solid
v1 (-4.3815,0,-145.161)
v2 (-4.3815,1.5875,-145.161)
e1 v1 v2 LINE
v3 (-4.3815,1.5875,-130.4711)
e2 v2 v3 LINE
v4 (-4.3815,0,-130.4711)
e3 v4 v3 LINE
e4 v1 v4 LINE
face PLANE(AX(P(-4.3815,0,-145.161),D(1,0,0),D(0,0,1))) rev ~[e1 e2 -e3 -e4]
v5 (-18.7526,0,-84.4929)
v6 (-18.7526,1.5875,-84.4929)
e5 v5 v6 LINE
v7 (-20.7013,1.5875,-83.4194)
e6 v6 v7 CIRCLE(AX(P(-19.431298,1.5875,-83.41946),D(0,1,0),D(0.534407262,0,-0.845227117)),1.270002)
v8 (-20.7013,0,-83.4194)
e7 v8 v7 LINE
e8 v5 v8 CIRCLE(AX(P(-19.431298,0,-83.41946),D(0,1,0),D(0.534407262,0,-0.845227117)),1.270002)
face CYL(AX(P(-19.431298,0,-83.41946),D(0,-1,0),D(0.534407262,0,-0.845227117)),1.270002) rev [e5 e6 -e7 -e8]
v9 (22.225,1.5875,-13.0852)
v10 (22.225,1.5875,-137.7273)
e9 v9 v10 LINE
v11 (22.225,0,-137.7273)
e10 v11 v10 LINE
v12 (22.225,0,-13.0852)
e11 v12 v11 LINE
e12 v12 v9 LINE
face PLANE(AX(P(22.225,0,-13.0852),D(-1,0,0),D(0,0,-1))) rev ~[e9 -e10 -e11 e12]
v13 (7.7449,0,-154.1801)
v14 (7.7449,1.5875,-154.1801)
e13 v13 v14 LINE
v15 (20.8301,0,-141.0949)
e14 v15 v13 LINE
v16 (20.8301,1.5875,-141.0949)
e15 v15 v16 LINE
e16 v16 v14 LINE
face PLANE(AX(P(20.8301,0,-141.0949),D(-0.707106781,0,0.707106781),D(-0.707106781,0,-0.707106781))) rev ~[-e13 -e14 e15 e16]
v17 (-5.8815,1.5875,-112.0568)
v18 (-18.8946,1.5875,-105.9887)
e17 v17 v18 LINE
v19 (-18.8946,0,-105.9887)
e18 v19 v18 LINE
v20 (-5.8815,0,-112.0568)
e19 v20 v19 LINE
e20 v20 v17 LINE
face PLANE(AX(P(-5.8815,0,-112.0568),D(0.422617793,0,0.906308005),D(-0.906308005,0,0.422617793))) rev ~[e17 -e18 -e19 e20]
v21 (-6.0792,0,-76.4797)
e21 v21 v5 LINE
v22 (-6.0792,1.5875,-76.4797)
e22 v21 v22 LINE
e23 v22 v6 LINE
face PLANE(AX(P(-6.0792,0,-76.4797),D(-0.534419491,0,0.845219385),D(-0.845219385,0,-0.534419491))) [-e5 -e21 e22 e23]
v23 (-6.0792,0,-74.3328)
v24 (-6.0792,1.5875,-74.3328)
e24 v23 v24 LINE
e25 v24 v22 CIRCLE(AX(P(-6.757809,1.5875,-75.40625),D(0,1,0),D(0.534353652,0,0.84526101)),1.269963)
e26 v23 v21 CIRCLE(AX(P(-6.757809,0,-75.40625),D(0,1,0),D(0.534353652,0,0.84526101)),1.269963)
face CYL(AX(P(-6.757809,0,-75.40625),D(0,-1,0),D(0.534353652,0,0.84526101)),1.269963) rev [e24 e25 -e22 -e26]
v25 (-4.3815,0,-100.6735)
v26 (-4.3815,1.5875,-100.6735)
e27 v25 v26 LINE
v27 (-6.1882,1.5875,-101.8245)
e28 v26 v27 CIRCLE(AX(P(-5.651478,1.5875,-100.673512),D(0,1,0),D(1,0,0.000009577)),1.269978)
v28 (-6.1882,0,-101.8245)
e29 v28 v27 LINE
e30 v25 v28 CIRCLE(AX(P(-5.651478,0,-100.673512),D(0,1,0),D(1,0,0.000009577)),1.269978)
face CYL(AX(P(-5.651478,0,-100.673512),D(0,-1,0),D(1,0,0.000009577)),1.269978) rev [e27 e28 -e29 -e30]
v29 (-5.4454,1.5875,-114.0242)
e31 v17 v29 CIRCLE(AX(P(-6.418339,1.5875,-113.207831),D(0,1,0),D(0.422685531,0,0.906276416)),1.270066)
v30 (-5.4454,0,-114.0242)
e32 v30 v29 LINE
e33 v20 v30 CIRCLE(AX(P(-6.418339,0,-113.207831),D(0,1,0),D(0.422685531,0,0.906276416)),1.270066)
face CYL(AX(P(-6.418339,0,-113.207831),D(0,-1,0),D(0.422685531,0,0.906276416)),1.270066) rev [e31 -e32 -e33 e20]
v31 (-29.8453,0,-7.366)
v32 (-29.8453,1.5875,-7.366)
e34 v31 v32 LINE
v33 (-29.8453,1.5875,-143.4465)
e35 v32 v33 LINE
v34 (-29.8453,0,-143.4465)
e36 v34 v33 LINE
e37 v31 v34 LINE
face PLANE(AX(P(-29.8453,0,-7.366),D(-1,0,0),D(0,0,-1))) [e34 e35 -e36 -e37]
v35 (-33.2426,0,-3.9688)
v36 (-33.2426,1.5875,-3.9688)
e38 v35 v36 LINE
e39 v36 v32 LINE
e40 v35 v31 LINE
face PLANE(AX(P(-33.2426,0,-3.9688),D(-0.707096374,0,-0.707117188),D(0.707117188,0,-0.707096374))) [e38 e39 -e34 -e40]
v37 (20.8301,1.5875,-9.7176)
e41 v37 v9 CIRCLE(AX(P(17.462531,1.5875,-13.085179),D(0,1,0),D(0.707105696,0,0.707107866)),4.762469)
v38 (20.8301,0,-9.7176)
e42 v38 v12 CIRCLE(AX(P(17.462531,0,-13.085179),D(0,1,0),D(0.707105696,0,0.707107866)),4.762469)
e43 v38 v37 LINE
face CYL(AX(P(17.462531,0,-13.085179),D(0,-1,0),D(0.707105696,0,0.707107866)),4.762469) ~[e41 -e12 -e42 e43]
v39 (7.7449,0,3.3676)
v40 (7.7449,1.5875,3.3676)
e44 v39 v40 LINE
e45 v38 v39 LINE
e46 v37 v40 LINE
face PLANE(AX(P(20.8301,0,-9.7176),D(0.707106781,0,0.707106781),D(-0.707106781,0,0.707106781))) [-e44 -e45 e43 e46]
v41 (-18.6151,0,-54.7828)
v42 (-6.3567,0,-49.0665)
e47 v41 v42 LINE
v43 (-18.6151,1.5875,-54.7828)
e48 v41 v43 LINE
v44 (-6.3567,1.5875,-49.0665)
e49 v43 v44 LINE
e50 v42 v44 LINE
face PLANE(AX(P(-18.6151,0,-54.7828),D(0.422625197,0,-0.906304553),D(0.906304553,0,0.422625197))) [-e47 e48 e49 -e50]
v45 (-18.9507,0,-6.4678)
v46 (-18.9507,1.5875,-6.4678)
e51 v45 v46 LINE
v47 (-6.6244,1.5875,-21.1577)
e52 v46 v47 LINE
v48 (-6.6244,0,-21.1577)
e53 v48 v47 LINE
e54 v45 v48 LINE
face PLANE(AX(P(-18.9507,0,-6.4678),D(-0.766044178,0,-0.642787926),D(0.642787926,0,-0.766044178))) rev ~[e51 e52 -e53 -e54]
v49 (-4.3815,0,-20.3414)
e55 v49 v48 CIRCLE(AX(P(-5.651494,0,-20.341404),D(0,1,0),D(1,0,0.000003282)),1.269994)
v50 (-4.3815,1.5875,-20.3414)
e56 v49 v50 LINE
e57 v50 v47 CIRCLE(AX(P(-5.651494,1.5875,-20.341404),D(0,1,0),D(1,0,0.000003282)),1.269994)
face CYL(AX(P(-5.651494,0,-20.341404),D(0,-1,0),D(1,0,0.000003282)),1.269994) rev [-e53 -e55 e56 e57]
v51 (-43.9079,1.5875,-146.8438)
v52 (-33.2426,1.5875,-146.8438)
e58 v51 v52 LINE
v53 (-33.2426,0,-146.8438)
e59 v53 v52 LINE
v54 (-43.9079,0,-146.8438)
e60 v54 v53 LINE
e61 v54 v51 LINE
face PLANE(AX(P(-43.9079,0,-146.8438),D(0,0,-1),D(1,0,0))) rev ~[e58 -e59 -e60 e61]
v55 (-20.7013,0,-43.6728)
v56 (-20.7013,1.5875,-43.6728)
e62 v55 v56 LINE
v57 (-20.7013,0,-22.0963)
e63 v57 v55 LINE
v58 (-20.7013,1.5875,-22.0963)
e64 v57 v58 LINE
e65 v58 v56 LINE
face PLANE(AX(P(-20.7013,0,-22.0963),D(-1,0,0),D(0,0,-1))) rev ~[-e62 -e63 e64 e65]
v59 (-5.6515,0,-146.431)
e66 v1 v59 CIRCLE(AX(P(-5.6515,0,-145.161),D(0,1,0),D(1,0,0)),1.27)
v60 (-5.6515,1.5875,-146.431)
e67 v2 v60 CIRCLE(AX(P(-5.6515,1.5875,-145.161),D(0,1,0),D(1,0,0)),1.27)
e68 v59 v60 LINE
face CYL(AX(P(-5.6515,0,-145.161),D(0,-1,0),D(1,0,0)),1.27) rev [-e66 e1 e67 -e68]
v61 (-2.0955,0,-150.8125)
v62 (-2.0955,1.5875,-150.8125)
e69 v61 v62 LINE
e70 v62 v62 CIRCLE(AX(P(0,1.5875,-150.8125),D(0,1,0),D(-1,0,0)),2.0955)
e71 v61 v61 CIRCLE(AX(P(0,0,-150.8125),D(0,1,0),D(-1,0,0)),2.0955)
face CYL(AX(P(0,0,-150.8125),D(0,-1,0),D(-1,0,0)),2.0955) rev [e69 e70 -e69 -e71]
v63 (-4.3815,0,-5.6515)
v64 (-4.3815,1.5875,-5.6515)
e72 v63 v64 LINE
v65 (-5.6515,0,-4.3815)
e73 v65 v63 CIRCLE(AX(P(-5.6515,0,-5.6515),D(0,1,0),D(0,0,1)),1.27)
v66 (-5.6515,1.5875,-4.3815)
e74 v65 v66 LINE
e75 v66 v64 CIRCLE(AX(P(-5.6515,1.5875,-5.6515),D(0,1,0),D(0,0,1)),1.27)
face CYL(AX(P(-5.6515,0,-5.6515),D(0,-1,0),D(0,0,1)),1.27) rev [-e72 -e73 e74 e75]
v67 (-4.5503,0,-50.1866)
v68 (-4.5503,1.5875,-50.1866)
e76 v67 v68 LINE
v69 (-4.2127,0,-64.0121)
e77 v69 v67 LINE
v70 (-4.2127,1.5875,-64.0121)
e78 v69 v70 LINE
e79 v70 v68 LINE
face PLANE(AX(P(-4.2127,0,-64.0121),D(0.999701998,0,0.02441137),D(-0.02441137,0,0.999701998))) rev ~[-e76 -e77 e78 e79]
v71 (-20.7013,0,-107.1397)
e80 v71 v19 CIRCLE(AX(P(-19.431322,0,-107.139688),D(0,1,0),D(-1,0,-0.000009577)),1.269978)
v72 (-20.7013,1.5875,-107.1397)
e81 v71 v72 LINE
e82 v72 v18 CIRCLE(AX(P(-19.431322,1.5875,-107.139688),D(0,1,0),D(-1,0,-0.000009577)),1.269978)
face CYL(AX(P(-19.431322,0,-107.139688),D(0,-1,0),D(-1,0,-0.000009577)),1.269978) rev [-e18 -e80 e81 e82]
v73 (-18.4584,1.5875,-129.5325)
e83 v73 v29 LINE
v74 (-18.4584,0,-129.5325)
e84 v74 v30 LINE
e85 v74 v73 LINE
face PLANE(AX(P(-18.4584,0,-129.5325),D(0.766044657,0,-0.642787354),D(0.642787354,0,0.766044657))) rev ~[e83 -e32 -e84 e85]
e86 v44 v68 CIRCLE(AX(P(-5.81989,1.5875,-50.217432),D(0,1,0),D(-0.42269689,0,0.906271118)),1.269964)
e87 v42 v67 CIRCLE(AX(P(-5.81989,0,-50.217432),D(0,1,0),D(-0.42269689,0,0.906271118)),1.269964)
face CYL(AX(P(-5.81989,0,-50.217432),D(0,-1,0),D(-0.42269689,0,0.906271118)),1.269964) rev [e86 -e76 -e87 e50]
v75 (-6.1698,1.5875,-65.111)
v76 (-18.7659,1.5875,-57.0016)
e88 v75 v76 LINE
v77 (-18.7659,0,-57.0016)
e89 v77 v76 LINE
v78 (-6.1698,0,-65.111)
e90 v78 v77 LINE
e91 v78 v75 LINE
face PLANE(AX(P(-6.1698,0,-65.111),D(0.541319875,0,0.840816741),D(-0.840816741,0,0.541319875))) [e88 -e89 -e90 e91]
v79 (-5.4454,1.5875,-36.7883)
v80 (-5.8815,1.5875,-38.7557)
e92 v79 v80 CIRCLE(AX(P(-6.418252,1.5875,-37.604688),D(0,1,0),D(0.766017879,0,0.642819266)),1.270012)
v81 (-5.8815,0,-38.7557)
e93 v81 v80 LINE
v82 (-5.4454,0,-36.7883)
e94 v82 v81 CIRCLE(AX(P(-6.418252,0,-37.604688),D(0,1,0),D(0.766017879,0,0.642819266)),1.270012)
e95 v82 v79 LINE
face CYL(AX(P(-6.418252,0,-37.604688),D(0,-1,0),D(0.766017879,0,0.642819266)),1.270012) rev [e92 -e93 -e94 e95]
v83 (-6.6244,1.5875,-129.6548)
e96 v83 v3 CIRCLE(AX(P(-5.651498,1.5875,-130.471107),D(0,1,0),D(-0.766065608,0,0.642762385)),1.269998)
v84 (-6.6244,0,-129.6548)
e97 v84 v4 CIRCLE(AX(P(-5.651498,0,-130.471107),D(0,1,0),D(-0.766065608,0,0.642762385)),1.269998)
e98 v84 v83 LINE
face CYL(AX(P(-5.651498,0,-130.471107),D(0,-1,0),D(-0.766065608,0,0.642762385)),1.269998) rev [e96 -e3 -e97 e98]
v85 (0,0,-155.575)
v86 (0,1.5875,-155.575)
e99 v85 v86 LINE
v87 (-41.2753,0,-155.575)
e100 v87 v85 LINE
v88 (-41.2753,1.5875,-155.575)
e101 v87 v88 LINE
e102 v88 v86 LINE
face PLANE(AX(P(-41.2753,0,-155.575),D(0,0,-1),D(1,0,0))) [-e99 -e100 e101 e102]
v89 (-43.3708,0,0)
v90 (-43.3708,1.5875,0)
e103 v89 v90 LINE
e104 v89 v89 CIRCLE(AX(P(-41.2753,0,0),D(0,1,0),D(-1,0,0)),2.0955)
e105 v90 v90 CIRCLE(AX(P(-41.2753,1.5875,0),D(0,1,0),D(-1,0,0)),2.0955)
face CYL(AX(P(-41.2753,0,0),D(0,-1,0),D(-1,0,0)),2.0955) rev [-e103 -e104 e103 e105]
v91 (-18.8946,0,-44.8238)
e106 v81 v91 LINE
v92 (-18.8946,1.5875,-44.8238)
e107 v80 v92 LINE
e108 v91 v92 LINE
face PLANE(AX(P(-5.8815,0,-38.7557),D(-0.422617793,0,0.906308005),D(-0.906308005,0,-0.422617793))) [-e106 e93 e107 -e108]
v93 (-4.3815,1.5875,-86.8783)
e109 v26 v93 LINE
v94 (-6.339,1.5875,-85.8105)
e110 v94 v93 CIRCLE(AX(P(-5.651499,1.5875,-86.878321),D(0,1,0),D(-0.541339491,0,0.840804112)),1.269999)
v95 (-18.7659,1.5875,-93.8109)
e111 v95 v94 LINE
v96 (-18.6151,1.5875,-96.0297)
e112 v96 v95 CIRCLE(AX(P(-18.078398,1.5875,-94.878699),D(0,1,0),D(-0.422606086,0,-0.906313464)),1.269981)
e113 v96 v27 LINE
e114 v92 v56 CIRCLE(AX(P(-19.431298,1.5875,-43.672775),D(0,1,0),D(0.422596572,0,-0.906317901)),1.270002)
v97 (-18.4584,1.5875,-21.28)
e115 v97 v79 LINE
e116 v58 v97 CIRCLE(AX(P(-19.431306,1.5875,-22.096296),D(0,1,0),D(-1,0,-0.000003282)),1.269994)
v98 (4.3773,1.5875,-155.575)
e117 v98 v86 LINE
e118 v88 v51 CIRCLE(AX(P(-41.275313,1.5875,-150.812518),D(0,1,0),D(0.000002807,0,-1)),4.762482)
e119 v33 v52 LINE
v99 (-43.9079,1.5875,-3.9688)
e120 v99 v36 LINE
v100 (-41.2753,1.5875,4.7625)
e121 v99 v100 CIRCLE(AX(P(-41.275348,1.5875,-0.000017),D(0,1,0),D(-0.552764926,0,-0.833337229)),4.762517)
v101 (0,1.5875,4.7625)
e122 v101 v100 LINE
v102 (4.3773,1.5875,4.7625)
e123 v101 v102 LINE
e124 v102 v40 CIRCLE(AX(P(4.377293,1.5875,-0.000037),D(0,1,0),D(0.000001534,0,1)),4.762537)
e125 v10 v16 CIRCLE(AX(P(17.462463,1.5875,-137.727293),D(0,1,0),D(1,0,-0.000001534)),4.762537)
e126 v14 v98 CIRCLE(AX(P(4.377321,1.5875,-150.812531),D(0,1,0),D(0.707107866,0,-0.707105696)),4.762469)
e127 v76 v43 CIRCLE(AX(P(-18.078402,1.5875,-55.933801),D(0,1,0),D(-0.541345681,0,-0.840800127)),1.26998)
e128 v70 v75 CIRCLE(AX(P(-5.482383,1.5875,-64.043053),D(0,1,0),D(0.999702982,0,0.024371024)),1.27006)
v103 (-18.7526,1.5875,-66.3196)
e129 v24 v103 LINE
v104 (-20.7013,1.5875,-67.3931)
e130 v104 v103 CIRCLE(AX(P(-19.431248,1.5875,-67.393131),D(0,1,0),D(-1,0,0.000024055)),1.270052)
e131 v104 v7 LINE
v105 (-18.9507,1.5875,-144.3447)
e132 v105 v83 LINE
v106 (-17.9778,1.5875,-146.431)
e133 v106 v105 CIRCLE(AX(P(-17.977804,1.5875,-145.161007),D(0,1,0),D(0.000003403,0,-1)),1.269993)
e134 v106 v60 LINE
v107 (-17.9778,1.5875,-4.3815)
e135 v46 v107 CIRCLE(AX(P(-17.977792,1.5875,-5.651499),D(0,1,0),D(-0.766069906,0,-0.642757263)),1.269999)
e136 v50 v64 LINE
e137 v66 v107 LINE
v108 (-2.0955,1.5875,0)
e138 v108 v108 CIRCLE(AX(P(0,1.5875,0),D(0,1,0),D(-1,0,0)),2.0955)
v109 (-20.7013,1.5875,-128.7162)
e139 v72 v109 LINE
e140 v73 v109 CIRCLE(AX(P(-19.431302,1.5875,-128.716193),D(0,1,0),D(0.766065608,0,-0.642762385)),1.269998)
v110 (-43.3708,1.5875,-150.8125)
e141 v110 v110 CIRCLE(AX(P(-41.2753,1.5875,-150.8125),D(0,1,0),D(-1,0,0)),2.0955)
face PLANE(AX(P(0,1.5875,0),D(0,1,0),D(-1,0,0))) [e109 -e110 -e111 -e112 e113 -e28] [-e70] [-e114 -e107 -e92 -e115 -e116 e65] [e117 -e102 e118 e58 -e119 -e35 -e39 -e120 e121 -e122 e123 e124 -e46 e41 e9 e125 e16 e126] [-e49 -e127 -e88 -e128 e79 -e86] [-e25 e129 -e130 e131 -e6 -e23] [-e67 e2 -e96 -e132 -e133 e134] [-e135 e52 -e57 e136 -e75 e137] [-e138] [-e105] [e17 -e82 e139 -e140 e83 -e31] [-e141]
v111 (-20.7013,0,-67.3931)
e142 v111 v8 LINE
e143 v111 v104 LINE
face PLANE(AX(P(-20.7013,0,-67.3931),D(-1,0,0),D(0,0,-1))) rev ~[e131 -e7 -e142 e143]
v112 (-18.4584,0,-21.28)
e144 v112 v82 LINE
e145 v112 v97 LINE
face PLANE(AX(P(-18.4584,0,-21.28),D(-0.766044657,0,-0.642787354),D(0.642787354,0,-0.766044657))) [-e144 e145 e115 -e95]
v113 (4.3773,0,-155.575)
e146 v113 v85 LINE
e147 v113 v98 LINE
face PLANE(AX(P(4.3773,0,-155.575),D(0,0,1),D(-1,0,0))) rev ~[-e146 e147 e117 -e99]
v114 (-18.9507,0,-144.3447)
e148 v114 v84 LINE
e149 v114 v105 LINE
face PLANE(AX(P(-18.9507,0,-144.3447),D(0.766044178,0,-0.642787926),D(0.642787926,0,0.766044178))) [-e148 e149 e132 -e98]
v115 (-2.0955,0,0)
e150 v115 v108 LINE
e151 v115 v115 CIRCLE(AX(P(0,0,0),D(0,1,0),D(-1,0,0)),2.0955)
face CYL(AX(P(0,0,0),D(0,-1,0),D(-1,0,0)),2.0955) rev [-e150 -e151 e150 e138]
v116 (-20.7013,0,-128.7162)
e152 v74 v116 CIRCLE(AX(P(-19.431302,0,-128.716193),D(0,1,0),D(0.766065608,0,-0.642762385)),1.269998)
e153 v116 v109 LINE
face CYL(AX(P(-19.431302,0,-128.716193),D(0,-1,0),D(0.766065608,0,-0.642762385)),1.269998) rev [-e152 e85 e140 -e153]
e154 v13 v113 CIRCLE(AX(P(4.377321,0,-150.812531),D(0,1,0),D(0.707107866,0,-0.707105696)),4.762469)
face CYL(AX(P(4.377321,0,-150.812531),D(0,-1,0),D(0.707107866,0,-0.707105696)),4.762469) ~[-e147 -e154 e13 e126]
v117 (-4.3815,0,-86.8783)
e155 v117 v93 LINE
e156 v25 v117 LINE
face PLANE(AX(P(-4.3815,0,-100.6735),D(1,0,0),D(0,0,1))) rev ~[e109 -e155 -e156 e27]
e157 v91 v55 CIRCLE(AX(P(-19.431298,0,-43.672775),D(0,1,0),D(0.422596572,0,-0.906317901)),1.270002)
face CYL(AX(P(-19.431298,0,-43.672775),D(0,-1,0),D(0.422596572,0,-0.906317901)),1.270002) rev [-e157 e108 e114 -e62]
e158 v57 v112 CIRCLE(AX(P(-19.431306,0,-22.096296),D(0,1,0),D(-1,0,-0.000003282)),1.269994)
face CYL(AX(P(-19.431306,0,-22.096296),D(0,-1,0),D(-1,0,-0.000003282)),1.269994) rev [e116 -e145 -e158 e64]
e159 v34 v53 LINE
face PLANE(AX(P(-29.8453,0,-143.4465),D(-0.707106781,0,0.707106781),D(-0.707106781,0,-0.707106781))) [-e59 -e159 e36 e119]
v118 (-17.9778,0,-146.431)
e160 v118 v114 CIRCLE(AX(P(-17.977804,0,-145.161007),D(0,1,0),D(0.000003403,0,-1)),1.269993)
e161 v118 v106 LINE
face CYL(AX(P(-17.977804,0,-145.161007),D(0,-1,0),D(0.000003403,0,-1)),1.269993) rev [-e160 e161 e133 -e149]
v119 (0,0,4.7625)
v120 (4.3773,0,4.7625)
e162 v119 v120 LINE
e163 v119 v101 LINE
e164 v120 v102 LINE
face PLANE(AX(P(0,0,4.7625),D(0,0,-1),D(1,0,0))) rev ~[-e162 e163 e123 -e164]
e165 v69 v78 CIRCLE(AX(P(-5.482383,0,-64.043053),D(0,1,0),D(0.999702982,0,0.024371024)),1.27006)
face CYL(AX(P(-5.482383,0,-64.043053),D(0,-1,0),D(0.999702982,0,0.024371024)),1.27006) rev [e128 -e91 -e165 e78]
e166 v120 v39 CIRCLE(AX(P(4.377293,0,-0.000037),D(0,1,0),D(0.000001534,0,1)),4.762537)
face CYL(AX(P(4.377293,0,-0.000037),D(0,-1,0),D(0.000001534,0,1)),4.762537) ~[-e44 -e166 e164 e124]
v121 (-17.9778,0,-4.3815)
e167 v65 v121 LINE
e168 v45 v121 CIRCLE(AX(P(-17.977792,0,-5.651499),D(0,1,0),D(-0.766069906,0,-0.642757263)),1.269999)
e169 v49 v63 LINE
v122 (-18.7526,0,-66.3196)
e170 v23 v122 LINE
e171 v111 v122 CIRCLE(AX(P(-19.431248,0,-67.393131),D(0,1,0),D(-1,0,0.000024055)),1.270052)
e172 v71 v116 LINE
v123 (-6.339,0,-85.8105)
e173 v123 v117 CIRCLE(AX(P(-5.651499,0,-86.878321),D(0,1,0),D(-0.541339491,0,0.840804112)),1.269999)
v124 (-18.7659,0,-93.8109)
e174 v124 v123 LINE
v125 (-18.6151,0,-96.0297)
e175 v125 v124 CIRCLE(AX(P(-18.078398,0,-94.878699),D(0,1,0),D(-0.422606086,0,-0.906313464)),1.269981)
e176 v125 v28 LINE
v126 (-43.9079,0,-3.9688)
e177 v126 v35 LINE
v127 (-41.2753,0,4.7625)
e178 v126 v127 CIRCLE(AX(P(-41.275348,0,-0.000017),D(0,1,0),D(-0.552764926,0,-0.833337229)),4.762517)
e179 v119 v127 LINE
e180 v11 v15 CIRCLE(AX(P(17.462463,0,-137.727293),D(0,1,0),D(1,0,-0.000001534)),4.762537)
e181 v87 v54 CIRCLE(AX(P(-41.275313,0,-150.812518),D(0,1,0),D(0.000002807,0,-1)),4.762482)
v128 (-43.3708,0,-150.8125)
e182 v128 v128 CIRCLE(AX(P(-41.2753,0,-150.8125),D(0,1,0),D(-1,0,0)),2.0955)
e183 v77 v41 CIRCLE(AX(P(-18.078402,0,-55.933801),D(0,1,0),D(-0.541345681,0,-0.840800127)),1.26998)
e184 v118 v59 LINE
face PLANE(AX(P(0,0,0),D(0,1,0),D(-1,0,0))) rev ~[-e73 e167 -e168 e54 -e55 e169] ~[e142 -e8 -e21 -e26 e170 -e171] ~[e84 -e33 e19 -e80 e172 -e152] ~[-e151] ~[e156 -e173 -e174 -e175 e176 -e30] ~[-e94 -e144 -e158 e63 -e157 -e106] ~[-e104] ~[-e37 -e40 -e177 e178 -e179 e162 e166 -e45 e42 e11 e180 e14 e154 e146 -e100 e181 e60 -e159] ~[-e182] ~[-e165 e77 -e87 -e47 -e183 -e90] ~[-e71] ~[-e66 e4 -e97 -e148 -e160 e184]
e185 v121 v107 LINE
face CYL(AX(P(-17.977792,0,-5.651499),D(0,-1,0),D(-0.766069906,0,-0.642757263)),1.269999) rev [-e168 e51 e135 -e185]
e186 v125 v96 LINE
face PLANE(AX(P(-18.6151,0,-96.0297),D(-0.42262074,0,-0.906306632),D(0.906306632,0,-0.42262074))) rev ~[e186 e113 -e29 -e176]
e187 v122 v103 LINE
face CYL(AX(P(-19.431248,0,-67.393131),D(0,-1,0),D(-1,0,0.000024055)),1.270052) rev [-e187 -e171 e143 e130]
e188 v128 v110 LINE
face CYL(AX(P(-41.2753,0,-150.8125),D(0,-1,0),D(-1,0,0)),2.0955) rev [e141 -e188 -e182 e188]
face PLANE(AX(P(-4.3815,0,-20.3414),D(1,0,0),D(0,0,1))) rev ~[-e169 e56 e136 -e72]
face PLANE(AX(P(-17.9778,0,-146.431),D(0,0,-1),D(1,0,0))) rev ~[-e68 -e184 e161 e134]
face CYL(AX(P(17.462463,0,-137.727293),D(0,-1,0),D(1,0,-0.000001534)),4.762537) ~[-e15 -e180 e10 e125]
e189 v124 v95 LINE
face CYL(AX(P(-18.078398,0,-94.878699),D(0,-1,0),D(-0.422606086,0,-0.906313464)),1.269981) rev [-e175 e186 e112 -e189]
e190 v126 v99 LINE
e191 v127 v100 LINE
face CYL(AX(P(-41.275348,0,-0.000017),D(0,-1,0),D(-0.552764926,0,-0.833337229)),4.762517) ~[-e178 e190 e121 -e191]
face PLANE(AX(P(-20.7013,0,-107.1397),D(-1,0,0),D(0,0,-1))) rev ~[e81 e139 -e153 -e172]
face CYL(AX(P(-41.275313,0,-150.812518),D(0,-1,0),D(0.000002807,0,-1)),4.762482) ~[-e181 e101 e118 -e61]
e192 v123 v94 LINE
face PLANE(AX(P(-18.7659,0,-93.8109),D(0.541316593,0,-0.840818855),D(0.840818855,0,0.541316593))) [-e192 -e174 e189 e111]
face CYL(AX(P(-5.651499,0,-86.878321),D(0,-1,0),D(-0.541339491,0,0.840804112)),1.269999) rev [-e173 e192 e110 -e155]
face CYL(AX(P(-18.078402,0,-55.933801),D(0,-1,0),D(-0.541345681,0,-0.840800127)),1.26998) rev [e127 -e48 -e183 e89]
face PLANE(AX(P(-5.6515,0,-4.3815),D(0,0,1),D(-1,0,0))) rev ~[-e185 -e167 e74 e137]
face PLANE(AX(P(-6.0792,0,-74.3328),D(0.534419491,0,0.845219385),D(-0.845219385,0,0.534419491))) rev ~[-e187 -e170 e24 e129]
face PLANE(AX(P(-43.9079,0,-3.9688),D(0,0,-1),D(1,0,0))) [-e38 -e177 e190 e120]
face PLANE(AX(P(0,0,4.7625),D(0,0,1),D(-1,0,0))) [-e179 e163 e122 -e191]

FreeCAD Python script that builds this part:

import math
import FreeCAD as App
import Part
import Sketcher
Q = App.Units.Quantity

doc = App.newDocument("Part")
params = doc.addObject("Spreadsheet::Sheet", "Params")
for row, (alias, value) in enumerate([
    ("sketch1_radius", "0.05 in"),
    ("sketch1_radius2", "0.05 in"),
    ("sketch1_radius3", "0.05 in"),
    ("sketch1_radius4", "0.05 in"),
    ("sketch1_radius5", "0.05 in"),
    ("pad1_length", "0.0625 in"),
], start=1):
    params.set(f"A{row}", alias)
    params.set(f"B{row}", "=" + value)
    params.setAlias(f"B{row}", alias)

body = doc.addObject("PartDesign::Body", "Body")

# Sketch on XZ plane
sketch1 = body.newObject("Sketcher::SketchObject", "Sketch")
sketch1.AttachmentSupport = (doc.getObject("XZ_Plane"), [""])
sketch1.MapMode = "FlatFace"
sketch1.addGeometry([
    Part.LineSegment(App.Vector(-33.2426, -3.9688, 0), App.Vector(-43.9079, -3.9688, 0)),  # 0
    Part.ArcOfCircle(Part.Circle(App.Vector(-41.2753, 0, 0), App.Vector(0, 0, 1), 4.762558), math.radians(90), math.radians(236.442731)),  # 1
    Part.LineSegment(App.Vector(-41.2753, 4.7625, 0), App.Vector(4.3773, 4.7625, 0)),  # 2
    Part.ArcOfCircle(Part.Circle(App.Vector(4.3773, 0, 0), App.Vector(0, 0, 1), 4.7625), math.radians(45), math.radians(90)),  # 3
    Part.LineSegment(App.Vector(7.7449, 3.3676, 0), App.Vector(20.8301, -9.7176, 0)),  # 4
    Part.ArcOfCircle(Part.Circle(App.Vector(17.4625, -13.0852, 0), App.Vector(0, 0, 1), 4.762506), math.radians(0), math.radians(45)),  # 5
    Part.LineSegment(App.Vector(22.225, -13.0852, 0), App.Vector(22.225, -137.7273, 0)),  # 6
    Part.ArcOfCircle(Part.Circle(App.Vector(17.4625, -137.7273, 0), App.Vector(0, 0, 1), 4.7625), math.radians(-45), math.radians(0)),  # 7
    Part.LineSegment(App.Vector(20.8301, -141.0949, 0), App.Vector(7.7449, -154.1801, 0)),  # 8
    Part.ArcOfCircle(Part.Circle(App.Vector(4.3773, -150.8125, 0), App.Vector(0, 0, 1), 4.762506), math.radians(-90), math.radians(-45)),  # 9
    Part.LineSegment(App.Vector(4.3773, -155.575, 0), App.Vector(-41.2753, -155.575, 0)),  # 10
    Part.ArcOfCircle(Part.Circle(App.Vector(-41.2753, -150.8125, 0), App.Vector(0, 0, 1), 4.7625), math.radians(123.557934), math.radians(270)),  # 11
    Part.LineSegment(App.Vector(-43.9079, -146.8438, 0), App.Vector(-33.2426, -146.8438, 0)),  # 12
    Part.LineSegment(App.Vector(-33.2426, -146.8438, 0), App.Vector(-29.8453, -143.4465, 0)),  # 13
    Part.LineSegment(App.Vector(-29.8453, -143.4465, 0), App.Vector(-29.8453, -7.366, 0)),  # 14
    Part.LineSegment(App.Vector(-29.8453, -7.366, 0), App.Vector(-33.2426, -3.9688, 0)),  # 15
    Part.Circle(App.Vector(0, -150.8125, 0), App.Vector(0, 0, 1), 2.0955),  # 16
    Part.ArcOfCircle(Part.Circle(App.Vector(-17.9778, -145.161, 0), App.Vector(0, 0, 1), 1.27), math.radians(140.002075), math.radians(270)),  # 17
    Part.LineSegment(App.Vector(-17.9778, -146.431, 0), App.Vector(-5.6515, -146.431, 0)),  # 18
    Part.ArcOfCircle(Part.Circle(App.Vector(-5.6515, -145.161, 0), App.Vector(0, 0, 1), 1.27), math.radians(-90), math.radians(0)),  # 19
    Part.LineSegment(App.Vector(-4.3815, -145.161, 0), App.Vector(-4.3815, -130.4711, 0)),  # 20
    Part.ArcOfCircle(Part.Circle(App.Vector(-5.6515, -130.4711, 0), App.Vector(0, 0, 1), 1.269992), math.radians(0), math.radians(140.002075)),  # 21
    Part.LineSegment(App.Vector(-6.6244, -129.6548, 0), App.Vector(-18.9507, -144.3447, 0)),  # 22
    Part.ArcOfCircle(Part.Circle(App.Vector(-18.0784, -94.8787, 0), App.Vector(0, 0, 1), 1.269979), math.radians(122.775345), math.radians(245.000822)),  # 23
    Part.LineSegment(App.Vector(-18.6151, -96.0297, 0), App.Vector(-6.1882, -101.8245, 0)),  # 24
    Part.ArcOfCircle(Part.Circle(App.Vector(-5.6515, -100.6735, 0), App.Vector(0, 0, 1), 1.27), math.radians(-114.999178), math.radians(0)),  # 25
    Part.LineSegment(App.Vector(-4.3815, -100.6735, 0), App.Vector(-4.3815, -86.8783, 0)),  # 26
    Part.ArcOfCircle(Part.Circle(App.Vector(-5.6515, -86.8783, 0), App.Vector(0, 0, 1), 1.269982), math.radians(0), math.radians(122.775345)),  # 27
    Part.LineSegment(App.Vector(-6.339, -85.8105, 0), App.Vector(-18.7659, -93.8109, 0)),  # 28
    Part.ArcOfCircle(Part.Circle(App.Vector(-19.4313, -128.7162, 0), App.Vector(0, 0, 1), 1.269992), math.radians(180), math.radians(320.002075)),  # 29
    Part.LineSegment(App.Vector(-18.4584, -129.5325, 0), App.Vector(-5.4454, -114.0242, 0)),  # 30
    Part.ArcOfCircle(Part.Circle(App.Vector(-6.4183, -113.2078, 0), App.Vector(0, 0, 1), 1.270022), math.radians(-40.001381), math.radians(64.996734)),  # 31
    Part.LineSegment(App.Vector(-5.8815, -112.0568, 0), App.Vector(-18.8946, -105.9887, 0)),  # 32
    Part.ArcOfCircle(Part.Circle(App.Vector(-19.4313, -107.1397, 0), App.Vector(0, 0, 1), 1.27), math.radians(65.000822), math.radians(180)),  # 33
    Part.LineSegment(App.Vector(-20.7013, -107.1397, 0), App.Vector(-20.7013, -128.7162, 0)),  # 34
    Part.Circle(App.Vector(-41.2753, -150.8125, 0), App.Vector(0, 0, 1), 2.0955),  # 35
    Part.LineSegment(App.Vector(-18.7526, -84.4929, 0), App.Vector(-6.0792, -76.4797, 0)),  # 36
    Part.ArcOfCircle(Part.Circle(App.Vector(-6.7579, -75.4063, 0), App.Vector(0, 0, 1), 1.270054), math.radians(-57.695245), math.radians(57.697656)),  # 37
    Part.LineSegment(App.Vector(-6.0792, -74.3328, 0), App.Vector(-18.7526, -66.3196, 0)),  # 38
    Part.ArcOfCircle(Part.Circle(App.Vector(-19.4313, -67.3931, 0), App.Vector(0, 0, 1), 1.27), math.radians(57.697656), math.radians(180)),  # 39
    Part.LineSegment(App.Vector(-20.7013, -67.3931, 0), App.Vector(-20.7013, -83.4194, 0)),  # 40
    Part.ArcOfCircle(Part.Circle(App.Vector(-19.4313, -83.4194, 0), App.Vector(0, 0, 1), 1.270054), math.radians(180), math.radians(302.302344)),  # 41
    Part.LineSegment(App.Vector(-6.3567, -49.0665, 0), App.Vector(-18.6151, -54.7828, 0)),  # 42
    Part.ArcOfCircle(Part.Circle(App.Vector(-18.0784, -55.9338, 0), App.Vector(0, 0, 1), 1.269982), math.radians(114.999178), math.radians(237.224655)),  # 43
    Part.LineSegment(App.Vector(-18.7659, -57.0016, 0), App.Vector(-6.1698, -65.111, 0)),  # 44
    Part.ArcOfCircle(Part.Circle(App.Vector(-5.4823, -64.0431, 0), App.Vector(0, 0, 1), 1.269978), math.radians(-122.772903), math.radians(1.398721)),  # 45
    Part.LineSegment(App.Vector(-4.2127, -64.0121, 0), App.Vector(-4.5503, -50.1866, 0)),  # 46
    Part.ArcOfCircle(Part.Circle(App.Vector(-5.8199, -50.2176, 0), App.Vector(0, 0, 1), 1.270112), math.radians(1.398721), math.radians(115.00136)),  # 47
    Part.Circle(App.Vector(0, 0, 0), App.Vector(0, 0, 1), 2.0955),  # 48
    Part.ArcOfCircle(Part.Circle(App.Vector(-5.6515, -5.6515, 0), App.Vector(0, 0, 1), 1.27), math.radians(0), math.radians(90)),  # 49
    Part.LineSegment(App.Vector(-5.6515, -4.3815, 0), App.Vector(-17.9778, -4.3815, 0)),  # 50
    Part.ArcOfCircle(Part.Circle(App.Vector(-17.9778, -5.6515, 0), App.Vector(0, 0, 1), 1.269992), math.radians(90), math.radians(219.997925)),  # 51
    Part.LineSegment(App.Vector(-18.9507, -6.4678, 0), App.Vector(-6.6244, -21.1577, 0)),  # 52
    Part.ArcOfCircle(Part.Circle(App.Vector(-5.6515, -20.3414, 0), App.Vector(0, 0, 1), 1.27), math.radians(-140.002075), math.radians(0)),  # 53
    Part.LineSegment(App.Vector(-4.3815, -20.3414, 0), App.Vector(-4.3815, -5.6515, 0)),  # 54
    Part.LineSegment(App.Vector(-5.4454, -36.7883, 0), App.Vector(-18.4584, -21.28, 0)),  # 55
    Part.ArcOfCircle(Part.Circle(App.Vector(-19.4313, -22.0963, 0), App.Vector(0, 0, 1), 1.27), math.radians(39.997925), math.radians(180)),  # 56
    Part.LineSegment(App.Vector(-20.7013, -22.0963, 0), App.Vector(-20.7013, -43.6728, 0)),  # 57
    Part.ArcOfCircle(Part.Circle(App.Vector(-19.4313, -43.6728, 0), App.Vector(0, 0, 1), 1.269979), math.radians(180), math.radians(294.999178)),  # 58
    Part.LineSegment(App.Vector(-18.8946, -44.8238, 0), App.Vector(-5.8815, -38.7557, 0)),  # 59
    Part.ArcOfCircle(Part.Circle(App.Vector(-6.4183, -37.6047, 0), App.Vector(0, 0, 1), 1.270056), math.radians(-64.996734), math.radians(40.001381)),  # 60
    Part.Circle(App.Vector(-41.2753, 0, 0), App.Vector(0, 0, 1), 2.0955),  # 61
], False)
sketch1.addConstraint([
    Sketcher.Constraint("Coincident", 0, 2, 1, 2),
    Sketcher.Constraint("Coincident", 1, 1, 2, 1),
    Sketcher.Constraint("Coincident", 2, 2, 3, 2),
    Sketcher.Constraint("Coincident", 3, 1, 4, 1),
    Sketcher.Constraint("Coincident", 4, 2, 5, 2),
    Sketcher.Constraint("Coincident", 5, 1, 6, 1),
    Sketcher.Constraint("Coincident", 6, 2, 7, 2),
    Sketcher.Constraint("Coincident", 7, 1, 8, 1),
    Sketcher.Constraint("Coincident", 8, 2, 9, 2),
    Sketcher.Constraint("Coincident", 9, 1, 10, 1),
    Sketcher.Constraint("Coincident", 10, 2, 11, 2),
    Sketcher.Constraint("Coincident", 11, 1, 12, 1),
    Sketcher.Constraint("Coincident", 12, 2, 13, 1),
    Sketcher.Constraint("Coincident", 13, 2, 14, 1),
    Sketcher.Constraint("Coincident", 14, 2, 15, 1),
    Sketcher.Constraint("Coincident", 15, 2, 0, 1),
    Sketcher.Constraint("Coincident", 17, 2, 18, 1),
    Sketcher.Constraint("Coincident", 18, 2, 19, 1),
    Sketcher.Constraint("Coincident", 19, 2, 20, 1),
    Sketcher.Constraint("Coincident", 20, 2, 21, 1),
    Sketcher.Constraint("Coincident", 21, 2, 22, 1),
    Sketcher.Constraint("Coincident", 22, 2, 17, 1),
    Sketcher.Constraint("Coincident", 23, 2, 24, 1),
    Sketcher.Constraint("Coincident", 24, 2, 25, 1),
    Sketcher.Constraint("Coincident", 25, 2, 26, 1),
    Sketcher.Constraint("Coincident", 26, 2, 27, 1),
    Sketcher.Constraint("Coincident", 27, 2, 28, 1),
    Sketcher.Constraint("Coincident", 28, 2, 23, 1),
    Sketcher.Constraint("Coincident", 29, 2, 30, 1),
    Sketcher.Constraint("Coincident", 30, 2, 31, 1),
    Sketcher.Constraint("Coincident", 31, 2, 32, 1),
    Sketcher.Constraint("Coincident", 32, 2, 33, 1),
    Sketcher.Constraint("Coincident", 33, 2, 34, 1),
    Sketcher.Constraint("Coincident", 34, 2, 29, 1),
    Sketcher.Constraint("Coincident", 36, 2, 37, 1),
    Sketcher.Constraint("Coincident", 37, 2, 38, 1),
    Sketcher.Constraint("Coincident", 38, 2, 39, 1),
    Sketcher.Constraint("Coincident", 39, 2, 40, 1),
    Sketcher.Constraint("Coincident", 40, 2, 41, 1),
    Sketcher.Constraint("Coincident", 41, 2, 36, 1),
    Sketcher.Constraint("Coincident", 42, 2, 43, 1),
    Sketcher.Constraint("Coincident", 43, 2, 44, 1),
    Sketcher.Constraint("Coincident", 44, 2, 45, 1),
    Sketcher.Constraint("Coincident", 45, 2, 46, 1),
    Sketcher.Constraint("Coincident", 46, 2, 47, 1),
    Sketcher.Constraint("Coincident", 47, 2, 42, 1),
    Sketcher.Constraint("Coincident", 49, 2, 50, 1),
    Sketcher.Constraint("Coincident", 50, 2, 51, 1),
    Sketcher.Constraint("Coincident", 51, 2, 52, 1),
    Sketcher.Constraint("Coincident", 52, 2, 53, 1),
    Sketcher.Constraint("Coincident", 53, 2, 54, 1),
    Sketcher.Constraint("Coincident", 54, 2, 49, 1),
    Sketcher.Constraint("Coincident", 55, 2, 56, 1),
    Sketcher.Constraint("Coincident", 56, 2, 57, 1),
    Sketcher.Constraint("Coincident", 57, 2, 58, 1),
    Sketcher.Constraint("Coincident", 58, 2, 59, 1),
    Sketcher.Constraint("Coincident", 59, 2, 60, 1),
    Sketcher.Constraint("Coincident", 60, 2, 55, 1),
    Sketcher.Constraint("Horizontal", 0),
    Sketcher.Constraint("Horizontal", 2),
    Sketcher.Constraint("Vertical", 6),
    Sketcher.Constraint("Horizontal", 10),
    Sketcher.Constraint("Horizontal", 12),
    Sketcher.Constraint("Vertical", 14),
    Sketcher.Constraint("Horizontal", 18),
    Sketcher.Constraint("Vertical", 20),
    Sketcher.Constraint("Vertical", 26),
    Sketcher.Constraint("Vertical", 34),
    Sketcher.Constraint("Vertical", 40),
    Sketcher.Constraint("Horizontal", 50),
    Sketcher.Constraint("Vertical", 54),
    Sketcher.Constraint("Vertical", 57),
    Sketcher.Constraint("Coincident", 48, 3, -1, 1),
    Sketcher.Constraint("Coincident", 35, 3, 11, 3),
    Sketcher.Constraint("Coincident", 61, 3, 1, 3),
    Sketcher.Constraint("PointOnObject", 1, 3, -1),
    Sketcher.Constraint("PointOnObject", 3, 3, -1),
    Sketcher.Constraint("PointOnObject", 16, 3, -2),
    Sketcher.Constraint("Radius", 17, Q("0.05 in")),
    Sketcher.Constraint("Radius", 19, Q("0.05 in")),
    Sketcher.Constraint("Radius", 21, Q("0.05 in")),
    Sketcher.Constraint("Radius", 23, Q("0.05 in")),
    Sketcher.Constraint("Radius", 25, Q("0.05 in")),
    Sketcher.Constraint("Radius", 27, Q("0.05 in")),
    Sketcher.Constraint("Radius", 29, Q("0.05 in")),
    Sketcher.Constraint("Radius", 31, Q("0.05 in")),
    Sketcher.Constraint("Radius", 33, Q("0.05 in")),
    Sketcher.Constraint("Radius", 37, Q("0.05 in")),
    Sketcher.Constraint("Radius", 39, Q("0.05 in")),
    Sketcher.Constraint("Radius", 41, Q("0.05 in")),
    Sketcher.Constraint("Radius", 43, Q("0.05 in")),
    Sketcher.Constraint("Radius", 45, Q("0.05 in")),
    Sketcher.Constraint("Radius", 47, Q("0.05 in")),
    Sketcher.Constraint("Radius", 49, Q("0.05 in")),
    Sketcher.Constraint("Radius", 51, Q("0.05 in")),
    Sketcher.Constraint("Radius", 53, Q("0.05 in")),
    Sketcher.Constraint("Radius", 56, Q("0.05 in")),
    Sketcher.Constraint("Radius", 58, Q("0.05 in")),
    Sketcher.Constraint("Radius", 60, Q("0.05 in")),
    Sketcher.Constraint("Diameter", 16, Q("0.165 in")),
    Sketcher.Constraint("Diameter", 35, Q("0.165 in")),
    Sketcher.Constraint("Diameter", 48, Q("0.165 in")),
    Sketcher.Constraint("Diameter", 61, Q("0.165 in")),
    Sketcher.Constraint("Radius", 1, Q("0.1875 in")),
    Sketcher.Constraint("Radius", 5, Q("0.1875 in")),
    Sketcher.Constraint("Radius", 7, Q("0.1875 in")),
    Sketcher.Constraint("Radius", 9, Q("0.1875 in")),
    Sketcher.Constraint("Radius", 11, Q("0.1875 in")),
    Sketcher.Constraint("DistanceX", -1, 1, 5, 1, Q("0.875 in")),
    Sketcher.Constraint("DistanceY", 14, 2, -1, 1, Q("0.29 in")),
    Sketcher.Constraint("DistanceX", 0, 2, 0, 1, Q("0.4199 in")),
    Sketcher.Constraint("DistanceX", 12, 1, 12, 2, Q("0.4199 in")),
    Sketcher.Constraint("DistanceY", 14, 1, 14, 2, Q("5.3575 in")),
    Sketcher.Constraint("DistanceX", 1, 3, -1, 1, Q("1.625 in")),
    Sketcher.Constraint("DistanceY", 9, 3, -1, 1, Q("5.9375 in")),
    Sketcher.Constraint("DistanceX", 11, 3, -1, 1, Q("1.625 in")),
    Sketcher.Constraint("DistanceY", 16, 3, -1, 1, Q("5.9375 in")),
    Sketcher.Constraint("DistanceY", 17, 3, -1, 1, Q("5.715 in")),
    Sketcher.Constraint("DistanceX", 29, 3, -1, 1, Q("0.765 in")),
    Sketcher.Constraint("DistanceY", 31, 3, -1, 1, Q("4.457 in")),
    Sketcher.Constraint("DistanceY", 37, 3, -1, 1, Q("2.968752 in")),
    Sketcher.Constraint("DistanceX", 39, 3, -1, 1, Q("0.765 in")),
    Sketcher.Constraint("DistanceX", 56, 3, -1, 1, Q("0.765 in")),
    Sketcher.Constraint("DistanceY", 0, 2, -1, 1, Q("0.156252 in")),
    Sketcher.Constraint("DistanceX", 1, 1, -1, 1, Q("1.625 in")),
    Sketcher.Constraint("DistanceX", 10, 2, -1, 1, Q("1.625 in")),
    Sketcher.Constraint("DistanceY", 11, 1, -1, 1, Q("5.781252 in")),
    Sketcher.Constraint("DistanceX", 13, 2, -1, 1, Q("1.175 in")),
    Sketcher.Constraint("DistanceY", 19, 2, -1, 1, Q("5.715 in")),
    Sketcher.Constraint("DistanceY", 36, 2, -1, 1, Q("3.011 in")),
    Sketcher.Constraint("DistanceY", 38, 2, -1, 1, Q("2.611 in")),
    Sketcher.Constraint("Distance", 32, Q("0.5653 in")),
    Sketcher.Constraint("Distance", 42, Q("0.5325 in")),
    Sketcher.Constraint("Distance", 44, Q("0.5898 in")),
    Sketcher.Constraint("Distance", 59, Q("0.5653 in")),
    Sketcher.Constraint("DistanceX", 2, 1, 2, 2, 45.6526),
    Sketcher.Constraint("DistanceX", 10, 2, 10, 1, 45.6526),
    Sketcher.Constraint("DistanceX", 18, 1, 18, 2, 12.3263),
    Sketcher.Constraint("DistanceX", 50, 2, 50, 1, 12.3263),
    Sketcher.Constraint("DistanceY", 6, 2, 6, 1, 124.642),
    Sketcher.Constraint("DistanceY", 20, 1, 20, 2, 14.69),
    Sketcher.Constraint("DistanceY", 26, 1, 26, 2, 13.7952),
    Sketcher.Constraint("DistanceY", 34, 2, 34, 1, 21.5765),
    Sketcher.Constraint("DistanceY", 40, 2, 40, 1, 16.0263),
    Sketcher.Constraint("DistanceY", 54, 1, 54, 2, 14.69),
    Sketcher.Constraint("DistanceY", 57, 2, 57, 1, 21.5765),
    Sketcher.Constraint("DistanceX", 19, 3, -1, 1, Q("0.2225 in")),
    Sketcher.Constraint("DistanceX", 25, 3, -1, 1, Q("0.2225 in")),
    Sketcher.Constraint("DistanceY", 27, 3, -1, 1, Q("3.4204 in")),
    Sketcher.Constraint("DistanceX", 31, 3, -1, 1, Q("0.2527 in")),
    Sketcher.Constraint("DistanceY", 33, 3, -1, 1, Q("4.2181 in")),
    Sketcher.Constraint("DistanceX", 49, 3, -1, 1, Q("0.2225 in")),
    Sketcher.Constraint("DistanceY", 49, 3, -1, 1, Q("0.2225 in")),
    Sketcher.Constraint("DistanceY", 58, 3, -1, 1, Q("1.7194 in")),
    Sketcher.Constraint("DistanceX", 60, 3, -1, 1, Q("0.2527 in")),
    Sketcher.Constraint("DistanceY", 60, 3, -1, 1, Q("1.4805 in")),
    Sketcher.Constraint("DistanceX", 18, 2, -1, 1, Q("0.2225 in")),
    Sketcher.Constraint("DistanceX", 21, 2, -1, 1, Q("0.2608 in")),
    Sketcher.Constraint("DistanceX", 22, 2, -1, 1, Q("0.7461 in")),
    Sketcher.Constraint("DistanceY", 23, 2, -1, 1, Q("3.7807 in")),
    Sketcher.Constraint("DistanceY", 26, 2, -1, 1, Q("3.4204 in")),
    Sketcher.Constraint("DistanceX", 29, 2, -1, 1, Q("0.7267 in")),
    Sketcher.Constraint("DistanceY", 29, 2, -1, 1, Q("5.0997 in")),
    Sketcher.Constraint("DistanceY", 33, 2, -1, 1, Q("4.2181 in")),
    Sketcher.Constraint("DistanceY", 37, 2, -1, 1, Q("2.9265 in")),
    Sketcher.Constraint("DistanceX", 38, 2, -1, 1, Q("0.7383 in")),
    Sketcher.Constraint("DistanceX", 41, 2, -1, 1, Q("0.7383 in")),
    Sketcher.Constraint("DistanceY", 41, 2, -1, 1, Q("3.3265 in")),
    Sketcher.Constraint("DistanceY", 42, 2, -1, 1, Q("2.1568 in")),
    Sketcher.Constraint("DistanceX", 44, 2, -1, 1, Q("0.2429 in")),
    Sketcher.Constraint("DistanceX", 49, 2, -1, 1, Q("0.2225 in")),
    Sketcher.Constraint("DistanceX", 51, 2, -1, 1, Q("0.7461 in")),
    Sketcher.Constraint("DistanceX", 52, 2, -1, 1, Q("0.2608 in")),
    Sketcher.Constraint("DistanceY", 54, 2, -1, 1, Q("0.2225 in")),
    Sketcher.Constraint("DistanceX", 55, 2, -1, 1, Q("0.7267 in")),
    Sketcher.Constraint("DistanceY", 55, 2, -1, 1, Q("0.8378 in")),
    Sketcher.Constraint("DistanceY", 57, 2, -1, 1, Q("1.7194 in")),
    Sketcher.Constraint("Distance", 4, 18.5053),
    Sketcher.Constraint("Distance", 8, 18.5053),
    Sketcher.Constraint("Distance", 22, 19.1763),
    Sketcher.Constraint("Distance", 24, 13.7116),
    Sketcher.Constraint("Distance", 28, 14.7795),
    Sketcher.Constraint("Distance", 30, 20.2446),
    Sketcher.Constraint("Distance", 36, 14.9942),
    Sketcher.Constraint("Distance", 46, 13.8296),
    Sketcher.Constraint("Distance", 52, 19.1763),
    Sketcher.Constraint("Distance", 55, 20.2446),
    Sketcher.Constraint("DistanceX", -1, 1, 3, 3, 4.3773),
    Sketcher.Constraint("DistanceY", 5, 3, -1, 1, 13.0852),
    Sketcher.Constraint("DistanceY", 7, 3, -1, 1, 137.7273),
    Sketcher.Constraint("DistanceX", -1, 1, 9, 3, 4.3773),
    Sketcher.Constraint("DistanceX", 17, 3, -1, 1, 17.9778),
    Sketcher.Constraint("DistanceX", 23, 3, -1, 1, 18.0784),
    Sketcher.Constraint("DistanceY", 23, 3, -1, 1, 94.8787),
    Sketcher.Constraint("DistanceY", 25, 3, -1, 1, 100.6735),
    Sketcher.Constraint("DistanceX", 43, 3, -1, 1, 18.0784),
    Sketcher.Constraint("DistanceY", 43, 3, -1, 1, 55.9338),
    Sketcher.Constraint("DistanceX", 45, 3, -1, 1, 5.4823),
    Sketcher.Constraint("DistanceY", 45, 3, -1, 1, 64.043),
    Sketcher.Constraint("DistanceX", 47, 3, -1, 1, 5.82),
    Sketcher.Constraint("DistanceY", 47, 3, -1, 1, 50.2176),
    Sketcher.Constraint("DistanceX", 51, 3, -1, 1, 17.9778),
    Sketcher.Constraint("DistanceX", -1, 1, 3, 1, 7.745),
    Sketcher.Constraint("DistanceY", 5, 1, -1, 1, 13.0852),
    Sketcher.Constraint("DistanceX", -1, 1, 7, 1, 20.83),
    Sketcher.Constraint("DistanceX", 27, 2, -1, 1, 6.339),
    Sketcher.Constraint("DistanceX", 31, 2, -1, 1, 5.8815),
    Sketcher.Constraint("DistanceY", 39, 2, -1, 1, 67.393),
    Sketcher.Constraint("DistanceX", 45, 2, -1, 1, 4.2127),
    Sketcher.Constraint("DistanceX", 58, 2, -1, 1, 18.8946),
])
sketch1.setExpression("Constraints[78]", "Params.sketch1_radius")
sketch1.setExpression("Constraints[79]", "Params.sketch1_radius2")
sketch1.setExpression("Constraints[80]", "Params.sketch1_radius3")
sketch1.setExpression("Constraints[81]", "Params.sketch1_radius4")
sketch1.setExpression("Constraints[82]", "Params.sketch1_radius5")
pad1 = body.newObject("PartDesign::Pad", "Pad")
pad1.Profile = sketch1
pad1.setExpression("Length", "Params.pad1_length")
pad1.Reversed = True

doc.recompute()
